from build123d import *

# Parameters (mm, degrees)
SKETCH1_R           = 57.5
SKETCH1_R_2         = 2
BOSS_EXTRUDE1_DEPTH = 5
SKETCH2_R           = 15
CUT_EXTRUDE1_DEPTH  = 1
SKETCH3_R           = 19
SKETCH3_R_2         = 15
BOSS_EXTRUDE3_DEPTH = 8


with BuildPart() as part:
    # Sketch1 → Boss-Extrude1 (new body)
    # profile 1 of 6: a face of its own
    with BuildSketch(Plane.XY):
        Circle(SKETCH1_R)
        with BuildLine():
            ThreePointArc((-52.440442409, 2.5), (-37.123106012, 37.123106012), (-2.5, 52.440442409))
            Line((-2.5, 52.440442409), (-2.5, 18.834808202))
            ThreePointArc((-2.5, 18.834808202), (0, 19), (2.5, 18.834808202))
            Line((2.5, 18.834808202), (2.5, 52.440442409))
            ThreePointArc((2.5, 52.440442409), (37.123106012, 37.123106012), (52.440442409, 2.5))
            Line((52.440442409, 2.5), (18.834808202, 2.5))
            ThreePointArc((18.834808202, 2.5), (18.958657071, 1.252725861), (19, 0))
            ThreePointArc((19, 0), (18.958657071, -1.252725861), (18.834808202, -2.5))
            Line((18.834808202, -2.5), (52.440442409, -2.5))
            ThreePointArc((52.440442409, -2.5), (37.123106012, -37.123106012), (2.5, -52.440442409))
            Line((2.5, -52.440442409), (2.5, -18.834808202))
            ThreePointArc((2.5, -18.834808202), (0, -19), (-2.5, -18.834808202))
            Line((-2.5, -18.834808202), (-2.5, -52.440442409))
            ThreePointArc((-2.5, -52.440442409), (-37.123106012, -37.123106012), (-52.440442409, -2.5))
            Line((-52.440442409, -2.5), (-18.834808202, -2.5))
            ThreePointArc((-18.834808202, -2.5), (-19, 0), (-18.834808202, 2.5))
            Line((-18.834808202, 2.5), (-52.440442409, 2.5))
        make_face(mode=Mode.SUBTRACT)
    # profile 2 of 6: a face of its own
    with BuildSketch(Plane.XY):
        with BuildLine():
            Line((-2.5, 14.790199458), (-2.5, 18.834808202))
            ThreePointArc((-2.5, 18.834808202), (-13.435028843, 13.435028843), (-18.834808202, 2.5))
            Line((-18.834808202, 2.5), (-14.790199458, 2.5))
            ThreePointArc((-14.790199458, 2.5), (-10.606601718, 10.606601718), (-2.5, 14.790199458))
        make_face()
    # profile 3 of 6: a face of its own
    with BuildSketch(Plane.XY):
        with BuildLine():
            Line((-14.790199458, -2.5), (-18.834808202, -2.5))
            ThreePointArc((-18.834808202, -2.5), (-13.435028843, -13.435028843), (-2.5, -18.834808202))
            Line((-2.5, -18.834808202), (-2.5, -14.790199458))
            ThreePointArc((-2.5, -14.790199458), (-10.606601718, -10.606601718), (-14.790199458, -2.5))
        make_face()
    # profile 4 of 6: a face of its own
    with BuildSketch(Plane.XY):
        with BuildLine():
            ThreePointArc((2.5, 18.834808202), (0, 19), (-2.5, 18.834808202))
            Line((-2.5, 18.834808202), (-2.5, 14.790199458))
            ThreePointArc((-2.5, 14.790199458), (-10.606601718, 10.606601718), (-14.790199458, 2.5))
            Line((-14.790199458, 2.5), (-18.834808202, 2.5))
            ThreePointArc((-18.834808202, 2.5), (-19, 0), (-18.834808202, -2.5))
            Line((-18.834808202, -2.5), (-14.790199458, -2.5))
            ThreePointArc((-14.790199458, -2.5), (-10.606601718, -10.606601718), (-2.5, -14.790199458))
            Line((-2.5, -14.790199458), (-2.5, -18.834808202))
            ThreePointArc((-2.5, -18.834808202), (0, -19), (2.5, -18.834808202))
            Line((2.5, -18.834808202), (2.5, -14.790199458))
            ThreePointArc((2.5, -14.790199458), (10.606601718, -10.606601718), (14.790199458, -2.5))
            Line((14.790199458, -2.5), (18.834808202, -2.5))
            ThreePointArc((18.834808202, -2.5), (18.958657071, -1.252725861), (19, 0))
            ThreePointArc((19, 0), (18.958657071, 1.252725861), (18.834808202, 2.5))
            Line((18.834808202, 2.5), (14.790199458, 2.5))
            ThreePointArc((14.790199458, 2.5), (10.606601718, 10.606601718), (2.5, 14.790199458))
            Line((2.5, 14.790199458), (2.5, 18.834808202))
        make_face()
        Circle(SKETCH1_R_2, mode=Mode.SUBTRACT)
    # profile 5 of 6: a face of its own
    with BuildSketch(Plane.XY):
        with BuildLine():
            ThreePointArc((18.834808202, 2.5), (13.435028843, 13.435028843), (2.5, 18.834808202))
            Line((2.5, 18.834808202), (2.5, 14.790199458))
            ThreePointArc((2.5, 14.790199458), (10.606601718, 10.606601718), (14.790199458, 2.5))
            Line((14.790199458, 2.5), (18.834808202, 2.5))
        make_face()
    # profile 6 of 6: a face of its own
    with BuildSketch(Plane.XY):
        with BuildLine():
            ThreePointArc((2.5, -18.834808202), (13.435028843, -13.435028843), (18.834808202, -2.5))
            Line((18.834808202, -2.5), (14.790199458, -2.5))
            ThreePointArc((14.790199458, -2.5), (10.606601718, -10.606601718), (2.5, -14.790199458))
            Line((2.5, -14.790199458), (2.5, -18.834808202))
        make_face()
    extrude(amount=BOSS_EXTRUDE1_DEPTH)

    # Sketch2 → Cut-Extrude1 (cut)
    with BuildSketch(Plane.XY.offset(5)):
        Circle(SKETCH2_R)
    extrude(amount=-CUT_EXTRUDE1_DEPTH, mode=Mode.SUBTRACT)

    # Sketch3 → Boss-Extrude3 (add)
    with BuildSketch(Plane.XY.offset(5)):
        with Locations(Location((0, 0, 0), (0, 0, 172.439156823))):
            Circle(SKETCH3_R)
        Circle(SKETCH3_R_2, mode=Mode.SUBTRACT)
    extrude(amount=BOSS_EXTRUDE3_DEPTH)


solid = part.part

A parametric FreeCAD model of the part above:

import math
import FreeCAD as App
import Part
import Sketcher

V = App.Vector

doc = App.newDocument("Part")
params = doc.addObject("Spreadsheet::Sheet", "Params")
for row, (alias, value) in enumerate([
    ("sketch1_diameter", "115 mm"),
    ("sketch1_diameter2", "4 mm"),
    ("sketch1_radius", "19 mm"),
    ("sketch1_radius2", "52.5 mm"),
    ("pad1_length", "5 mm"),
    ("sketch2_diameter", "30 mm"),
    ("pocket1_length", "1 mm"),
    ("sketch3_diameter", "38 mm"),
    ("sketch3_diameter2", "30 mm"),
    ("pad2_length", "8 mm"),
], start=1):
    params.set(f"A{row}", alias)
    params.set(f"B{row}", "=" + value)
    params.setAlias(f"B{row}", alias)

body = doc.addObject("PartDesign::Body", "Body")

# Sketch on XY plane
sketch1 = body.newObject("Sketcher::SketchObject", "Sketch")
sketch1.AttachmentSupport = (doc.getObject("XY_Plane"), [""])
sketch1.MapMode = "FlatFace"
sketch1.addGeometry(Part.Circle(V(0, 0, 0), V(0, 0, 1), 57.5), False)
sketch1.addGeometry(Part.LineSegment(V(-18.834808, 2.5, 0), V(-52.440442, 2.5, 0)), False)
sketch1.addGeometry(Part.ArcOfCircle(Part.Circle(V(0, 0, 0), V(0, 0, 1), 52.5), math.radians(92.729403), math.radians(177.270597)), False)
sketch1.addGeometry(Part.LineSegment(V(-2.5, 52.440442, 0), V(-2.5, 18.834808, 0)), False)
sketch1.addGeometry(Part.ArcOfCircle(Part.Circle(V(0, 0, 0), V(0, 0, 1), 19), math.radians(97.560843), math.radians(172.439157)), False)
sketch1.addGeometry(Part.LineSegment(V(-52.440442, -2.5, 0), V(-18.834808, -2.5, 0)), False)
sketch1.addGeometry(Part.ArcOfCircle(Part.Circle(V(0, 0, 0), V(0, 0, 1), 19), math.radians(-172.439157), math.radians(-97.560843)), False)
sketch1.addGeometry(Part.LineSegment(V(-2.5, -18.834808, 0), V(-2.5, -52.440442, 0)), False)
sketch1.addGeometry(Part.ArcOfCircle(Part.Circle(V(0, 0, 0), V(0, 0, 1), 52.5), math.radians(-177.270597), math.radians(-92.729403)), False)
sketch1.addGeometry(Part.LineSegment(V(2.5, -52.440442, 0), V(2.5, -18.834808, 0)), False)
sketch1.addGeometry(Part.ArcOfCircle(Part.Circle(V(0, 0, 0), V(0, 0, 1), 19), math.radians(-82.439157), math.radians(-7.560843)), False)
sketch1.addGeometry(Part.LineSegment(V(18.834808, -2.5, 0), V(52.440442, -2.5, 0)), False)
sketch1.addGeometry(Part.ArcOfCircle(Part.Circle(V(0, 0, 0), V(0, 0, 1), 52.5), math.radians(-87.270597), math.radians(-2.729403)), False)
sketch1.addGeometry(Part.LineSegment(V(52.440442, 2.5, 0), V(18.834808, 2.5, 0)), False)
sketch1.addGeometry(Part.ArcOfCircle(Part.Circle(V(0, 0, 0), V(0, 0, 1), 19), math.radians(7.560843), math.radians(82.439157)), False)
sketch1.addGeometry(Part.LineSegment(V(2.5, 18.834808, 0), V(2.5, 52.440442, 0)), False)
sketch1.addGeometry(Part.ArcOfCircle(Part.Circle(V(0, 0, 0), V(0, 0, 1), 52.5), math.radians(2.729403), math.radians(87.270597)), False)
sketch1.addGeometry(Part.Circle(V(0, 0, 0), V(0, 0, 1), 2), False)
sketch1.addConstraint(Sketcher.Constraint("Coincident", 1, 2, 2, 2))
sketch1.addConstraint(Sketcher.Constraint("Coincident", 2, 1, 3, 1))
sketch1.addConstraint(Sketcher.Constraint("Coincident", 3, 2, 4, 1))
sketch1.addConstraint(Sketcher.Constraint("Coincident", 4, 2, 1, 1))
sketch1.addConstraint(Sketcher.Constraint("Coincident", 5, 2, 6, 1))
sketch1.addConstraint(Sketcher.Constraint("Coincident", 6, 2, 7, 1))
sketch1.addConstraint(Sketcher.Constraint("Coincident", 7, 2, 8, 2))
sketch1.addConstraint(Sketcher.Constraint("Coincident", 8, 1, 5, 1))
sketch1.addConstraint(Sketcher.Constraint("Coincident", 9, 2, 10, 1))
sketch1.addConstraint(Sketcher.Constraint("Coincident", 10, 2, 11, 1))
sketch1.addConstraint(Sketcher.Constraint("Coincident", 11, 2, 12, 2))
sketch1.addConstraint(Sketcher.Constraint("Coincident", 12, 1, 9, 1))
sketch1.addConstraint(Sketcher.Constraint("Coincident", 13, 2, 14, 1))
sketch1.addConstraint(Sketcher.Constraint("Coincident", 14, 2, 15, 1))
sketch1.addConstraint(Sketcher.Constraint("Coincident", 15, 2, 16, 2))
sketch1.addConstraint(Sketcher.Constraint("Coincident", 16, 1, 13, 1))
sketch1.addConstraint(Sketcher.Constraint("Horizontal", 1))
sketch1.addConstraint(Sketcher.Constraint("Vertical", 3))
sketch1.addConstraint(Sketcher.Constraint("Horizontal", 5))
sketch1.addConstraint(Sketcher.Constraint("Vertical", 7))
sketch1.addConstraint(Sketcher.Constraint("Vertical", 9))
sketch1.addConstraint(Sketcher.Constraint("Horizontal", 11))
sketch1.addConstraint(Sketcher.Constraint("Horizontal", 13))
sketch1.addConstraint(Sketcher.Constraint("Vertical", 15))
sketch1.addConstraint(Sketcher.Constraint("Coincident", 0, 3, -1, 1))
sketch1.addConstraint(Sketcher.Constraint("Coincident", 2, 3, -1, 1))
sketch1.addConstraint(Sketcher.Constraint("Coincident", 4, 3, -1, 1))
sketch1.addConstraint(Sketcher.Constraint("Coincident", 6, 3, -1, 1))
sketch1.addConstraint(Sketcher.Constraint("Coincident", 8, 3, -1, 1))
sketch1.addConstraint(Sketcher.Constraint("Coincident", 10, 3, -1, 1))
sketch1.addConstraint(Sketcher.Constraint("Coincident", 12, 3, -1, 1))
sketch1.addConstraint(Sketcher.Constraint("Coincident", 14, 3, -1, 1))
sketch1.addConstraint(Sketcher.Constraint("Coincident", 16, 3, -1, 1))
sketch1.addConstraint(Sketcher.Constraint("Coincident", 17, 3, -1, 1))
sketch1.addConstraint(Sketcher.Constraint("Equal", 4, 6))
sketch1.addConstraint(Sketcher.Constraint("Equal", 2, 8))
sketch1.addConstraint(Sketcher.Constraint("Equal", 6, 10))
sketch1.addConstraint(Sketcher.Constraint("Equal", 8, 12))
sketch1.addConstraint(Sketcher.Constraint("Equal", 10, 14))
sketch1.addConstraint(Sketcher.Constraint("Equal", 12, 16))
sketch1.addConstraint(Sketcher.Constraint("Horizontal", 6, 2, 9, 2))
sketch1.addConstraint(Sketcher.Constraint("Horizontal", 8, 1, 10, 2))
sketch1.addConstraint(Sketcher.Constraint("Horizontal", 4, 2, 13, 2))
sketch1.addConstraint(Sketcher.Constraint("Horizontal", 3, 2, 14, 2))
sketch1.addConstraint(Sketcher.Constraint("Vertical", 4, 2, 5, 2))
sketch1.addConstraint(Sketcher.Constraint("Vertical", 3, 2, 6, 2))
sketch1.addConstraint(Sketcher.Constraint("Equal", 13, 3))
sketch1.addConstraint(Sketcher.Constraint("Diameter", 0, 115.0))
sketch1.addConstraint(Sketcher.Constraint("Diameter", 17, 4.0))
sketch1.addConstraint(Sketcher.Constraint("Radius", 4, 19.0))
sketch1.addConstraint(Sketcher.Constraint("Radius", 2, 52.5))
sketch1.addConstraint(Sketcher.Constraint("DistanceY", 5, 2, 4, 2, 5.0))
sketch1.setExpression("Constraints[47]", "Params.sketch1_diameter")
sketch1.setExpression("Constraints[48]", "Params.sketch1_diameter2")
sketch1.setExpression("Constraints[49]", "Params.sketch1_radius")
sketch1.setExpression("Constraints[50]", "Params.sketch1_radius2")
pad1 = body.newObject("PartDesign::Pad", "Pad")
pad1.Profile = sketch1
pad1.setExpression("Length", "Params.pad1_length")

# Sketch on XY plane
sketch2 = body.newObject("Sketcher::SketchObject", "Sketch001")
sketch2.AttachmentSupport = (doc.getObject("XY_Plane"), [""])
sketch2.MapMode = "FlatFace"
sketch2.AttachmentOffset = App.Placement(V(0, 0, 5), App.Rotation())
sketch2.addGeometry(Part.Circle(V(0, 0, 0), V(0, 0, 1), 15), False)
sketch2.addConstraint(Sketcher.Constraint("Coincident", 0, 3, -1, 1))
sketch2.addConstraint(Sketcher.Constraint("Diameter", 0, 30.0))
sketch2.setExpression("Constraints[1]", "Params.sketch2_diameter")
pocket1 = body.newObject("PartDesign::Pocket", "Pocket")
pocket1.Profile = sketch2
pocket1.setExpression("Length", "Params.pocket1_length")

# Sketch on XY plane
sketch3 = body.newObject("Sketcher::SketchObject", "Sketch002")
sketch3.AttachmentSupport = (doc.getObject("XY_Plane"), [""])
sketch3.MapMode = "FlatFace"
sketch3.AttachmentOffset = App.Placement(V(0, 0, 5), App.Rotation())
sketch3.addGeometry(Part.Circle(V(0, 0, 0), V(0, 0, 1), 19), False)
sketch3.addGeometry(Part.Circle(V(0, 0, 0), V(0, 0, 1), 15), False)
sketch3.addConstraint(Sketcher.Constraint("Coincident", 0, 3, -1, 1))
sketch3.addConstraint(Sketcher.Constraint("Coincident", 1, 3, -1, 1))
sketch3.addConstraint(Sketcher.Constraint("Diameter", 0, 38.0))
sketch3.addConstraint(Sketcher.Constraint("Diameter", 1, 30.0))
sketch3.setExpression("Constraints[2]", "Params.sketch3_diameter")
sketch3.setExpression("Constraints[3]", "Params.sketch3_diameter2")
pad2 = body.newObject("PartDesign::Pad", "Pad001")
pad2.Profile = sketch3
pad2.setExpression("Length", "Params.pad2_length")

doc.recompute()
